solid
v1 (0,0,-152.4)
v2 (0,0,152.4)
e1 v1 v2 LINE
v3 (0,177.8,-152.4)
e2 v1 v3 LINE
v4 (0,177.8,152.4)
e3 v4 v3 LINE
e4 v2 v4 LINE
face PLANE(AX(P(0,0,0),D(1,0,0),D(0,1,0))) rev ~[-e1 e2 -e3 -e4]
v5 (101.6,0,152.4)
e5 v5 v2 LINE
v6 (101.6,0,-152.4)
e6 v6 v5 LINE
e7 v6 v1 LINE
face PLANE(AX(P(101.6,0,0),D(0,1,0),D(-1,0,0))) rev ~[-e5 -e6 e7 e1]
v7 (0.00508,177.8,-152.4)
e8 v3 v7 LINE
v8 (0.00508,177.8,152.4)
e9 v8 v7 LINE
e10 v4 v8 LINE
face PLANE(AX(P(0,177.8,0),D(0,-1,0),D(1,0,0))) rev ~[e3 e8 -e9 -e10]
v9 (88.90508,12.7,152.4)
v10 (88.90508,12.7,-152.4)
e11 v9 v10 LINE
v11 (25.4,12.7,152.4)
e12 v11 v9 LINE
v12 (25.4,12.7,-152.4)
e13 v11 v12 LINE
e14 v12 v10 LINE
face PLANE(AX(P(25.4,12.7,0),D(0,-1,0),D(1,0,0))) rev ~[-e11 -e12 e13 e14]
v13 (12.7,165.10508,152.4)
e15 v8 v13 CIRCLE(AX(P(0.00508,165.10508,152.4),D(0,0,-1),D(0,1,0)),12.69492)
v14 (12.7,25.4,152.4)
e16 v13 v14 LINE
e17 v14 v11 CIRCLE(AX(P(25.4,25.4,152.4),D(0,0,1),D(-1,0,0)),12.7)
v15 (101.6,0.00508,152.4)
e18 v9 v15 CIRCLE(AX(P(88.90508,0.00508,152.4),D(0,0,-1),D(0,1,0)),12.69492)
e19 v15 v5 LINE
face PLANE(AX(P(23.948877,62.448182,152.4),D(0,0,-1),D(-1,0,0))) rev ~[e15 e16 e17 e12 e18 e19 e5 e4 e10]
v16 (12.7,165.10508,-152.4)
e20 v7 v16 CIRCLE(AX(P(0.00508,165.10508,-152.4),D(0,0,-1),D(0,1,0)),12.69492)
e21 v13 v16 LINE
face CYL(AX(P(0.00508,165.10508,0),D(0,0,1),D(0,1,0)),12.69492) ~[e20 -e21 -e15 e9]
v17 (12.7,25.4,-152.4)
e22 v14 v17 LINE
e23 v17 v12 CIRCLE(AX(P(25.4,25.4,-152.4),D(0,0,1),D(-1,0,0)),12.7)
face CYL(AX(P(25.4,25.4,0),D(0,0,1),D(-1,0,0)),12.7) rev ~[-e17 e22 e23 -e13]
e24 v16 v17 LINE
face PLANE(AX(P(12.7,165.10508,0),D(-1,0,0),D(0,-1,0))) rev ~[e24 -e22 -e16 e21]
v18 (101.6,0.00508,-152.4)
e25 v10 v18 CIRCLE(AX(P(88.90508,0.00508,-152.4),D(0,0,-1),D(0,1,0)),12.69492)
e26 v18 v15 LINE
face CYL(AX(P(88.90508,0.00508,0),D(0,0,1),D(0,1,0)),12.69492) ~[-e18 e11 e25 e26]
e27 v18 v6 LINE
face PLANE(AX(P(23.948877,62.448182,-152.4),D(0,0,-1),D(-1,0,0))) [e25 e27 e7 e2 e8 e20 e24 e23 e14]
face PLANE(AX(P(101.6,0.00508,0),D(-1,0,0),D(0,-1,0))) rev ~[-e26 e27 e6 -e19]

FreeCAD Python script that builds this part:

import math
import FreeCAD as App
import Part
import Sketcher

V = App.Vector
Q = App.Units.Quantity

doc = App.newDocument("Part")
body = doc.addObject("PartDesign::Body", "Body")

# Sketch on XY plane
sketch1 = body.newObject("Sketcher::SketchObject", "Sketch")
sketch1.AttachmentSupport = (doc.getObject("XY_Plane"), [""])
sketch1.MapMode = "FlatFace"
sketch1.addGeometry([
    Part.LineSegment(V(0, 177.8, 0), V(0, 0, 0)),  # 0
    Part.LineSegment(V(0, 0, 0), V(101.6, 0, 0)),  # 1
    Part.LineSegment(V(101.6, 0, 0), V(101.6, 0.005, 0)),  # 2
    Part.ArcOfCircle(Part.Circle(V(88.905, 0.005, 0), V(0, 0, 1), 12.695), math.radians(0), math.radians(90)),  # 3
    Part.LineSegment(V(88.905, 12.7, 0), V(25.4, 12.7, 0)),  # 4
    Part.ArcOfCircle(Part.Circle(V(25.4, 25.4, 0), V(0, 0, 1), 12.7), math.radians(180), math.radians(270)),  # 5
    Part.LineSegment(V(12.7, 25.4, 0), V(12.7, 165.105, 0)),  # 6
    Part.ArcOfCircle(Part.Circle(V(0.005, 165.105, 0), V(0, 0, 1), 12.695), math.radians(0), math.radians(90)),  # 7
    Part.LineSegment(V(0.005, 177.8, 0), V(0, 177.8, 0)),  # 8
], False)
sketch1.addConstraint([
    Sketcher.Constraint("Coincident", 0, 2, 1, 1),
    Sketcher.Constraint("Coincident", 1, 2, 2, 1),
    Sketcher.Constraint("Tangent", 2, 2, 3, 1),
    Sketcher.Constraint("Tangent", 3, 2, 4, 1),
    Sketcher.Constraint("Tangent", 4, 2, 5, 2),
    Sketcher.Constraint("Tangent", 5, 1, 6, 1),
    Sketcher.Constraint("Tangent", 6, 2, 7, 1),
    Sketcher.Constraint("Tangent", 7, 2, 8, 1),
    Sketcher.Constraint("Coincident", 8, 2, 0, 1),
    Sketcher.Constraint("Vertical", 0),
    Sketcher.Constraint("Horizontal", 1),
    Sketcher.Constraint("Horizontal", 4),
    Sketcher.Constraint("Vertical", 6),
    Sketcher.Constraint("Coincident", 0, 2, -1, 1),
    Sketcher.Constraint("Equal", 3, 7),
    Sketcher.Constraint("Horizontal", 3, 3, 2, 2),
    Sketcher.Constraint("Equal", 8, 2),
    Sketcher.Constraint("Radius", 5, Q("0.5 in")),
    Sketcher.Constraint("DistanceX", 1, 1, 1, 2, Q("4 in")),
    Sketcher.Constraint("DistanceY", 0, 2, 0, 1, Q("7 in")),
    Sketcher.Constraint("DistanceX", -1, 1, 5, 3, Q("1 in")),
    Sketcher.Constraint("DistanceY", -1, 1, 5, 3, Q("1 in")),
    Sketcher.Constraint("Radius", 3, Q("0.4998 in")),
])
pad1 = body.newObject("PartDesign::Pad", "Pad")
pad1.Profile = sketch1
pad1.Length = Q("12 in")
pad1.Midplane = True

doc.recompute()
